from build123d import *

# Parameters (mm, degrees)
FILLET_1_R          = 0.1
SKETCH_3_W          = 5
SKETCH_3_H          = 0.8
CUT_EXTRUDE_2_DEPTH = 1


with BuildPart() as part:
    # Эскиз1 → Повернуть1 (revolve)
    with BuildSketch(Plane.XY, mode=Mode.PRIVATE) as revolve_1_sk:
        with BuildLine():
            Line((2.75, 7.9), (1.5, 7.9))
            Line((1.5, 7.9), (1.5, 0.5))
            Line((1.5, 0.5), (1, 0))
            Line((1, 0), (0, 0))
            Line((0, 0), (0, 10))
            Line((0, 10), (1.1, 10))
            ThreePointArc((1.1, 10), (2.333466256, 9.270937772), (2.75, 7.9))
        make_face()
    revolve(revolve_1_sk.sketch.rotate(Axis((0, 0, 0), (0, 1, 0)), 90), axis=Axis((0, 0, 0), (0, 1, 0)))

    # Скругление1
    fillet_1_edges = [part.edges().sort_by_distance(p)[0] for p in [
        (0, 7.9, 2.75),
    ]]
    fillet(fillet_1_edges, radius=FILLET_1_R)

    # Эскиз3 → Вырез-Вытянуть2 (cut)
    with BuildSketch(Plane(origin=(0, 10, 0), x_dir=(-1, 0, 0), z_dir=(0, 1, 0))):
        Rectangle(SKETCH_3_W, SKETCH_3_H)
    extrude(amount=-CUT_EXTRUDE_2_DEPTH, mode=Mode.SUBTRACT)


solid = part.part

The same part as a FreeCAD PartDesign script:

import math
import FreeCAD as App
import Part
import Sketcher
from FreeCAD import Vector
Q = App.Units.Quantity


def edges_at(feature, points):
    """Names of the edges that pass closest to the given points."""
    edges = feature.Shape.Edges
    near = lambda p: min(range(len(edges)), key=lambda i: edges[i].distToShape(Part.Vertex(*p))[0])
    return sorted({f"Edge{near(p) + 1}" for p in points})

doc = App.newDocument("Part")
params = doc.addObject("Spreadsheet::Sheet", "Params")
for row, (alias, value) in enumerate([
    ("sketch1_width", "1 mm"),
    ("sketch1_height", "10 mm"),
    ("sketch1_width2", "1.1 mm"),
    ("sketch1_height2", "7.4 mm"),
    ("sketch1_width3", "1.25 mm"),
    ("revolution_angle", "360 deg"),
    ("fillet_radius", "0.1 mm"),
    ("sketch2_width", "5 mm"),
    ("sketch2_height", "0.8 mm"),
    ("pocket1_length", "1 mm"),
], start=1):
    params.set(f"A{row}", alias)
    params.set(f"B{row}", "=" + value)
    params.setAlias(f"B{row}", alias)

body = doc.addObject("PartDesign::Body", "Body")

# Sketch on XY plane
sketch1 = doc.addObject("Sketcher::SketchObject", "Sketch")
body.addObject(sketch1)
sketch1.AttachmentSupport = (doc.XY_Plane, [""])
sketch1.MapMode = "FlatFace"
sketch1.addGeometry([
    Part.LineSegment(Vector(1.5, 7.9, 0), Vector(2.8, 7.9, 0)),  # 0
    Part.ArcOfCircle(Part.Circle(Vector(0.8, 8.1, 0), Vector(0, 0, 1), 2), math.radians(-4), math.radians(81)),  # 1
    Part.LineSegment(Vector(1.1, 10, 0), Vector(0, 10, 0)),  # 2
    Part.LineSegment(Vector(0, 10, 0), Vector(0, 0, 0)),  # 3
    Part.LineSegment(Vector(0, 0, 0), Vector(1, 0, 0)),  # 4
    Part.LineSegment(Vector(1, 0, 0), Vector(1.5, 0.5, 0)),  # 5
    Part.LineSegment(Vector(1.5, 0.5, 0), Vector(1.5, 7.9, 0)),  # 6
], False)
sketch1.addConstraint([
    Sketcher.Constraint("Coincident", 0, 2, 1, 1),
    Sketcher.Constraint("Coincident", 1, 2, 2, 1),
    Sketcher.Constraint("Coincident", 2, 2, 3, 1),
    Sketcher.Constraint("Coincident", 3, 2, 4, 1),
    Sketcher.Constraint("Coincident", 4, 2, 5, 1),
    Sketcher.Constraint("Coincident", 5, 2, 6, 1),
    Sketcher.Constraint("Coincident", 6, 2, 0, 1),
    Sketcher.Constraint("Horizontal", 0),
    Sketcher.Constraint("Horizontal", 2),
    Sketcher.Constraint("Vertical", 3),
    Sketcher.Constraint("Horizontal", 4),
    Sketcher.Constraint("Vertical", 6),
    Sketcher.Constraint("Coincident", 3, 2, -1, 1),
    Sketcher.Constraint("DistanceX", 4, 1, 4, 2, 1.0),
    Sketcher.Constraint("DistanceY", 3, 2, 3, 1, 10.0),
    Sketcher.Constraint("Angle", 5, Q("45 deg")),
    Sketcher.Constraint("DistanceX", 2, 2, 2, 1, 1.1),
    Sketcher.Constraint("DistanceY", 6, 1, 6, 2, 7.4),
    Sketcher.Constraint("DistanceX", 0, 1, 0, 2, 1.25),
    Sketcher.Constraint("DistanceY", -1, 1, 0, 2, 7.9),
    Sketcher.Constraint("Radius", 1, 1.976037),
])
sketch1.setExpression("Constraints[13]", "Params.sketch1_width")
sketch1.setExpression("Constraints[14]", "Params.sketch1_height")
sketch1.setExpression("Constraints[16]", "Params.sketch1_width2")
sketch1.setExpression("Constraints[17]", "Params.sketch1_height2")
sketch1.setExpression("Constraints[18]", "Params.sketch1_width3")
revolution = doc.addObject("PartDesign::Revolution", "Revolution")
body.addObject(revolution)
revolution.Profile = sketch1
revolution.ReferenceAxis = (sketch1, ["V_Axis"])
revolution.setExpression("Angle", "Params.revolution_angle")
doc.recompute()

fillet = doc.addObject("PartDesign::Fillet", "Fillet")
body.addObject(fillet)
fillet.Base = (revolution, edges_at(revolution, [(0, 7.9, 2.75)]))
fillet.setExpression("Radius", "Params.fillet_radius")

# Sketch on XZ plane
sketch2 = doc.addObject("Sketcher::SketchObject", "Sketch001")
body.addObject(sketch2)
sketch2.AttachmentSupport = (doc.XZ_Plane, [""])
sketch2.MapMode = "FlatFace"
sketch2.AttachmentOffset = App.Placement(Vector(0, 0, -10), App.Rotation())
sketch2.addGeometry([
    Part.LineSegment(Vector(2.5, 0.4, 0), Vector(2.5, -0.4, 0)),
    Part.LineSegment(Vector(2.5, -0.4, 0), Vector(-2.5, -0.4, 0)),
    Part.LineSegment(Vector(-2.5, -0.4, 0), Vector(-2.5, 0.4, 0)),
    Part.LineSegment(Vector(-2.5, 0.4, 0), Vector(2.5, 0.4, 0)),
], False)
sketch2.addConstraint([
    Sketcher.Constraint("Coincident", 0, 2, 1, 1),
    Sketcher.Constraint("Coincident", 1, 2, 2, 1),
    Sketcher.Constraint("Coincident", 2, 2, 3, 1),
    Sketcher.Constraint("Coincident", 3, 2, 0, 1),
    Sketcher.Constraint("Vertical", 0),
    Sketcher.Constraint("Horizontal", 1),
    Sketcher.Constraint("Vertical", 2),
    Sketcher.Constraint("Horizontal", 3),
    Sketcher.Constraint("Symmetric", 0, 2, 2, 2, -1, 1),
    Sketcher.Constraint("DistanceX", 1, 2, 1, 1, 5.0),
    Sketcher.Constraint("DistanceY", 0, 2, 0, 1, 0.8),
])
sketch2.setExpression("Constraints[9]", "Params.sketch2_width")
sketch2.setExpression("Constraints[10]", "Params.sketch2_height")
pocket1 = doc.addObject("PartDesign::Pocket", "Pocket")
body.addObject(pocket1)
pocket1.Profile = sketch2
pocket1.setExpression("Length", "Params.pocket1_length")
pocket1.Reversed = True

doc.recompute()
